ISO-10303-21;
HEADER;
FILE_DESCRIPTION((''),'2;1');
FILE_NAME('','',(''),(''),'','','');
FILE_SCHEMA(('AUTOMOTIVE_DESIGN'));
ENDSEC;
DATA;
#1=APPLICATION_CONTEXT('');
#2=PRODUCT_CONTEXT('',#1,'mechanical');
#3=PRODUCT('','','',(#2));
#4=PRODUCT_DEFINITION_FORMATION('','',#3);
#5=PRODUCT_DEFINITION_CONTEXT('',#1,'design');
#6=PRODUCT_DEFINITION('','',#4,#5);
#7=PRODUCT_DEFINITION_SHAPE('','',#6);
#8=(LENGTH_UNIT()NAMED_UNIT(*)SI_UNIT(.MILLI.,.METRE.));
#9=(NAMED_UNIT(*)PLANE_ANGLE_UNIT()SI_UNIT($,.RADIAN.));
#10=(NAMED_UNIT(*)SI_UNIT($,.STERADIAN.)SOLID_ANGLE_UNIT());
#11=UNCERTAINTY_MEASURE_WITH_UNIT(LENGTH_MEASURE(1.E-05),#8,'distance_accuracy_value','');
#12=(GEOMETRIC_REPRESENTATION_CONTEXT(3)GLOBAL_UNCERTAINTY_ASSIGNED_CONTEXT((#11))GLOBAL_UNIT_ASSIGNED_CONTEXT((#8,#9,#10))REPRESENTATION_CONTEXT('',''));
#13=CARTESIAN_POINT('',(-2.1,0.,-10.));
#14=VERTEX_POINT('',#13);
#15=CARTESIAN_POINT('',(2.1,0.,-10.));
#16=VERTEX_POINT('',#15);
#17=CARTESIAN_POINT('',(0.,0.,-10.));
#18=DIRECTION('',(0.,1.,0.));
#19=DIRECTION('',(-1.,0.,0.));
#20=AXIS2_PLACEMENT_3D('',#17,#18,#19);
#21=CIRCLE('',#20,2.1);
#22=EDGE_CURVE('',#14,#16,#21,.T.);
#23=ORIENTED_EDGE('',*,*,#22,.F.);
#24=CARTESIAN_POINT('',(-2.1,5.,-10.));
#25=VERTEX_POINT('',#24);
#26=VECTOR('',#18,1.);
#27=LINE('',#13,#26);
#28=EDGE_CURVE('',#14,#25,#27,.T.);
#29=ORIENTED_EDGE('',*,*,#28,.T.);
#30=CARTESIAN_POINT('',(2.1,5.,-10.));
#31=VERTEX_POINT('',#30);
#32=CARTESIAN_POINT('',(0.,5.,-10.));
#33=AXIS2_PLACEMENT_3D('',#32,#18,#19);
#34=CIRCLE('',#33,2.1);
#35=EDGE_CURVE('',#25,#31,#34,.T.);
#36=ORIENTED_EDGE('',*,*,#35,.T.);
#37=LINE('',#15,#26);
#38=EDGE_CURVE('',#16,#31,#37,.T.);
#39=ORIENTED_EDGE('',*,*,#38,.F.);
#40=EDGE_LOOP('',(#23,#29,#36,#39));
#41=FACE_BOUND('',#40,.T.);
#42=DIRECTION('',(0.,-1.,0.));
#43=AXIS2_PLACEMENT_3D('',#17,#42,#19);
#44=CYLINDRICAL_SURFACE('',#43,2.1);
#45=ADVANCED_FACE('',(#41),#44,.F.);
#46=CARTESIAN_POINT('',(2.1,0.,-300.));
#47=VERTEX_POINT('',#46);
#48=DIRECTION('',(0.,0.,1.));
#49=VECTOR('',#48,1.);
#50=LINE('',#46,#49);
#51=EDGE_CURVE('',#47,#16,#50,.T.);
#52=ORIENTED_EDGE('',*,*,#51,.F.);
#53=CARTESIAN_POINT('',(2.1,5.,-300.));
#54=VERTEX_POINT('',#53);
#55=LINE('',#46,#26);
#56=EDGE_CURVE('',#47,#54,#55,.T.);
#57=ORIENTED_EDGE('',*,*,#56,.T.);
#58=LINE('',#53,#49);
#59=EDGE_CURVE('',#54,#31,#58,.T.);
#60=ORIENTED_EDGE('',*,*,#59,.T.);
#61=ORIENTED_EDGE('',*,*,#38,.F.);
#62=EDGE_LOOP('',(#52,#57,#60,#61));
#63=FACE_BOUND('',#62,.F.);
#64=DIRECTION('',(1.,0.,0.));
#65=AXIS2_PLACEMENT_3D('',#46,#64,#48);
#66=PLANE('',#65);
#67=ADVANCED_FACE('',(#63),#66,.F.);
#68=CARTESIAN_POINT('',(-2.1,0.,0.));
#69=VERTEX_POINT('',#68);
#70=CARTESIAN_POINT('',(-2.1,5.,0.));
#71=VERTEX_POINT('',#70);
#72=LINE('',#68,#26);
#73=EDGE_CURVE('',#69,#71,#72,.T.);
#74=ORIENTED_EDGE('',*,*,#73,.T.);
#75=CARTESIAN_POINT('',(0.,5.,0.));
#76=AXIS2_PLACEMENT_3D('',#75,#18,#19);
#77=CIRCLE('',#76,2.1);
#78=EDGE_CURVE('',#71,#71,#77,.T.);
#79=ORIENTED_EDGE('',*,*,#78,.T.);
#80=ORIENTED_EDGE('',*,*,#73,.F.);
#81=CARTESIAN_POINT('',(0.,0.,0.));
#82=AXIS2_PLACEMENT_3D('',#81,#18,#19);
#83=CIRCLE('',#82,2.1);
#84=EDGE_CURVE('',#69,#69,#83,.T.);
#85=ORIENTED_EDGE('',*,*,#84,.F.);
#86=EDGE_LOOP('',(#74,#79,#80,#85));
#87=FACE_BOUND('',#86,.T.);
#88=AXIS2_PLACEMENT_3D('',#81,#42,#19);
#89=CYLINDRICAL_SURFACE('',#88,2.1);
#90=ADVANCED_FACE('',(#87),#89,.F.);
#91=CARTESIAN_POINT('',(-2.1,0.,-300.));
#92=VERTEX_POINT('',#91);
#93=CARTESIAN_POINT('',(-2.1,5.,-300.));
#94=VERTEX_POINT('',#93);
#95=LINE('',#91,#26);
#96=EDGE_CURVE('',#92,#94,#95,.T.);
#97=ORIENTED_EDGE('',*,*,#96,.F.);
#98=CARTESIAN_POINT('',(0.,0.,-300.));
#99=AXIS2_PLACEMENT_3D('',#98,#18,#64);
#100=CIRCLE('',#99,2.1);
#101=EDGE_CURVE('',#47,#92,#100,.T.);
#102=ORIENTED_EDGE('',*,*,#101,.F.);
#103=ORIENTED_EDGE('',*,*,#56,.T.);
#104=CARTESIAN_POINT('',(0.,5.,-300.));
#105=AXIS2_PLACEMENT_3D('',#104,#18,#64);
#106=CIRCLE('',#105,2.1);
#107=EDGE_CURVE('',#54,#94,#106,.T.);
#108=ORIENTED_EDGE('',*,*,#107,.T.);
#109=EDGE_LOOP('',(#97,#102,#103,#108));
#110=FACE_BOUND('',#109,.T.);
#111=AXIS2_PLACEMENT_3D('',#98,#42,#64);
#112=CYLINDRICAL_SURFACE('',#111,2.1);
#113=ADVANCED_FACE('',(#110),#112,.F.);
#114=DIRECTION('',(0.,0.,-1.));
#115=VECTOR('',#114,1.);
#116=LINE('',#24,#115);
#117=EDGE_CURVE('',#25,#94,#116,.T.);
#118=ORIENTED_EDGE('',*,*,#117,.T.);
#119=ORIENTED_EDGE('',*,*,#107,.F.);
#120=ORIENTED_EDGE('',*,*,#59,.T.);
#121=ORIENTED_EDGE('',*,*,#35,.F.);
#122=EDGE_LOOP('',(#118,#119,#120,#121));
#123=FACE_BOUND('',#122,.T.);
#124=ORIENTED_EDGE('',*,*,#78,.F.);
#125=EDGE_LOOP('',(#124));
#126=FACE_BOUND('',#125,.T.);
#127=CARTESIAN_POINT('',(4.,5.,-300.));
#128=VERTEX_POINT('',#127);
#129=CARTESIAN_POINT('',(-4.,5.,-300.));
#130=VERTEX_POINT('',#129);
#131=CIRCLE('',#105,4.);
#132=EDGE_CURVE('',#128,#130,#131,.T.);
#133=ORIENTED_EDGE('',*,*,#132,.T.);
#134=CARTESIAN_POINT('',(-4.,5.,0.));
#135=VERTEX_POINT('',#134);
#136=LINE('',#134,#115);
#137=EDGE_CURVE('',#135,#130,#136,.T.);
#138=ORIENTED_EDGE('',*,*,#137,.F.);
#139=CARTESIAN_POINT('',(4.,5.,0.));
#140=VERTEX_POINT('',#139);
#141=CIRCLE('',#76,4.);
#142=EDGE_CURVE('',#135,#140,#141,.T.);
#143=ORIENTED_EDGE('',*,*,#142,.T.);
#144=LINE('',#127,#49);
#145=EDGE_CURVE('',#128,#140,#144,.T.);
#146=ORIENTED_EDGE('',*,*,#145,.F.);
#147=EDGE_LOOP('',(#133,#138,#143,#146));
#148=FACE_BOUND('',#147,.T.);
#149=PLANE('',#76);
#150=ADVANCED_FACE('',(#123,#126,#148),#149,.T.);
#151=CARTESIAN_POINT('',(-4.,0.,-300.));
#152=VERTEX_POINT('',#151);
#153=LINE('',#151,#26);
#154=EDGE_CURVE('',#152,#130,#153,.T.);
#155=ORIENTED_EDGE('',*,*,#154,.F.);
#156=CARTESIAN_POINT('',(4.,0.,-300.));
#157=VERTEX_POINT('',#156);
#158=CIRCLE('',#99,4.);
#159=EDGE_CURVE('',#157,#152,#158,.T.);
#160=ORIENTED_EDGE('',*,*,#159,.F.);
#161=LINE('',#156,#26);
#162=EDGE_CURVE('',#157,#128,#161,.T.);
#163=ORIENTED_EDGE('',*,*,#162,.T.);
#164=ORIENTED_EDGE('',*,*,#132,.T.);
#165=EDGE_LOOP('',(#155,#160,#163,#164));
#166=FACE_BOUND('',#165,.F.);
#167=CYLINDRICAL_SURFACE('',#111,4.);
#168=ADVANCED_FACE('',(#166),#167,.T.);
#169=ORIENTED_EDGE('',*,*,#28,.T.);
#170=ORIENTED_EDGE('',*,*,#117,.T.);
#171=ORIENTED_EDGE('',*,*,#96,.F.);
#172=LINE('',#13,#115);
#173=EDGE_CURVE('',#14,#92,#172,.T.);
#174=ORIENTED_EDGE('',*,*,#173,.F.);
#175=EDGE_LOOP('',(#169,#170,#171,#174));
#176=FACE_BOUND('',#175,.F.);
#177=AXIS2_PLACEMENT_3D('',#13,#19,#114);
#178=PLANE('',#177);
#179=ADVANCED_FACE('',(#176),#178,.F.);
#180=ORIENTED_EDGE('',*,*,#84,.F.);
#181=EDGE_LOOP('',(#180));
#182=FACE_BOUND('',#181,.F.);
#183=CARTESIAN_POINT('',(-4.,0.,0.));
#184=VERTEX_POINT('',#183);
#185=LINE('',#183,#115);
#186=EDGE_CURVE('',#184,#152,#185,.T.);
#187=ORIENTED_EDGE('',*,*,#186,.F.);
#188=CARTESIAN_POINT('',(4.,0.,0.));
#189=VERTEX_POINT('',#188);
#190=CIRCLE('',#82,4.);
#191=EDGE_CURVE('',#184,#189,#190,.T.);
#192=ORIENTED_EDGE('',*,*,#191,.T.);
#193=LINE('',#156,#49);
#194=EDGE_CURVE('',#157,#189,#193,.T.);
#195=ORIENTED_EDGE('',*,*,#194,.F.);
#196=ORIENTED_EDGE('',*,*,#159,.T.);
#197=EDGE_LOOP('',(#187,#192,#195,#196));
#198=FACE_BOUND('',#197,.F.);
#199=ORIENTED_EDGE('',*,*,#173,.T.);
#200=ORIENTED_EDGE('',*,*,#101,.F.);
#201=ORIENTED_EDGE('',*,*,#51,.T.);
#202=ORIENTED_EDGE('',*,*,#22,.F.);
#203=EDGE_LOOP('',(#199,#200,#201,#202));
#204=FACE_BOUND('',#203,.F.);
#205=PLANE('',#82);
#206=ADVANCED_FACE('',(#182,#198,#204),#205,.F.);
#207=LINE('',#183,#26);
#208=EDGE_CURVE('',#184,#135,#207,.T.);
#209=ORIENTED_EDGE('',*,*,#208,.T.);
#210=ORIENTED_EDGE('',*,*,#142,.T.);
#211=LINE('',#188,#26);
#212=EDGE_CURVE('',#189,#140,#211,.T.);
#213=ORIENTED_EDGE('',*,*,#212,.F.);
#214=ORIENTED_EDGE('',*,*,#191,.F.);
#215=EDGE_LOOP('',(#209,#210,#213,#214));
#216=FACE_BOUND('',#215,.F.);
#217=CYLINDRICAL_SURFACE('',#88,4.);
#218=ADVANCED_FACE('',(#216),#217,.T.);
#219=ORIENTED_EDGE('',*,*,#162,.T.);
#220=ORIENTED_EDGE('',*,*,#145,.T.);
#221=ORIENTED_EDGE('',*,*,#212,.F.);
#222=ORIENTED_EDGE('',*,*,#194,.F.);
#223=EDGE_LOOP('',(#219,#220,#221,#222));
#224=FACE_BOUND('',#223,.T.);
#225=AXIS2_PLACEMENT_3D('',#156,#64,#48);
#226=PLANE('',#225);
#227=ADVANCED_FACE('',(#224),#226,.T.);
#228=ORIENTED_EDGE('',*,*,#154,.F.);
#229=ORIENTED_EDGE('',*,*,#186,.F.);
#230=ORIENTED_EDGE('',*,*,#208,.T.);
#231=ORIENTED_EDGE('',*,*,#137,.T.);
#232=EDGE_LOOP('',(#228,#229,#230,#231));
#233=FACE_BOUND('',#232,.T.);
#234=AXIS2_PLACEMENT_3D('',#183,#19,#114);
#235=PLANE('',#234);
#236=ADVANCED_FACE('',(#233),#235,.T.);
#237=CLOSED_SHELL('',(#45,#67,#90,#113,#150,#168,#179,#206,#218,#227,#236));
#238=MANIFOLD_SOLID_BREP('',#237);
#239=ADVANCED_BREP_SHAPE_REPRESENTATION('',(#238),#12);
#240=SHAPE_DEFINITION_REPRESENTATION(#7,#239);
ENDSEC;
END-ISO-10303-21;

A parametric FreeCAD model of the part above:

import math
import FreeCAD as App
import Part
import Sketcher
from FreeCAD import Vector

doc = App.newDocument("Part")
body = doc.addObject("PartDesign::Body", "Body")

# Sketch on XZ plane
sketch1 = body.newObject("Sketcher::SketchObject", "Sketch")
sketch1.AttachmentSupport = (doc.getObject("XZ_Plane"), [""])
sketch1.MapMode = "FlatFace"
sketch1.addGeometry(Part.LineSegment(Vector(-4, -300, 0), Vector(-4, 0, 0)), False)
sketch1.addGeometry(Part.ArcOfCircle(Part.Circle(Vector(0, 0, 0), Vector(0, 0, 1), 4), math.radians(0), math.radians(180)), False)
sketch1.addGeometry(Part.LineSegment(Vector(4, 0, 0), Vector(4, -300, 0)), False)
sketch1.addGeometry(Part.ArcOfCircle(Part.Circle(Vector(0, -300, 0), Vector(0, 0, 1), 4), math.radians(180), math.radians(360)), False)
sketch1.addGeometry(Part.ArcOfCircle(Part.Circle(Vector(0, -10, 0), Vector(0, 0, 1), 2.1), math.radians(0), math.radians(180)), False)
sketch1.addGeometry(Part.LineSegment(Vector(-2.1, -10, 0), Vector(-2.1, -300, 0)), False)
sketch1.addGeometry(Part.ArcOfCircle(Part.Circle(Vector(0, -300, 0), Vector(0, 0, 1), 2.1), math.radians(180), math.radians(360)), False)
sketch1.addGeometry(Part.LineSegment(Vector(2.1, -300, 0), Vector(2.1, -10, 0)), False)
sketch1.addGeometry(Part.Circle(Vector(0, 0, 0), Vector(0, 0, 1), 2.1), False)
sketch1.addConstraint(Sketcher.Constraint("Tangent", 0, 2, 1, 2))
sketch1.addConstraint(Sketcher.Constraint("Tangent", 1, 1, 2, 1))
sketch1.addConstraint(Sketcher.Constraint("Tangent", 2, 2, 3, 2))
sketch1.addConstraint(Sketcher.Constraint("Tangent", 3, 1, 0, 1))
sketch1.addConstraint(Sketcher.Constraint("Tangent", 4, 2, 5, 1))
sketch1.addConstraint(Sketcher.Constraint("Tangent", 5, 2, 6, 1))
sketch1.addConstraint(Sketcher.Constraint("Tangent", 6, 2, 7, 1))
sketch1.addConstraint(Sketcher.Constraint("Tangent", 7, 2, 4, 1))
sketch1.addConstraint(Sketcher.Constraint("Vertical", 0))
sketch1.addConstraint(Sketcher.Constraint("Vertical", 2))
sketch1.addConstraint(Sketcher.Constraint("Vertical", 5))
sketch1.addConstraint(Sketcher.Constraint("Vertical", 7))
sketch1.addConstraint(Sketcher.Constraint("Coincident", 1, 3, -1, 1))
sketch1.addConstraint(Sketcher.Constraint("Coincident", 8, 3, -1, 1))
sketch1.addConstraint(Sketcher.Constraint("Coincident", 6, 3, 3, 3))
sketch1.addConstraint(Sketcher.Constraint("Equal", 6, 8))
sketch1.addConstraint(Sketcher.Constraint("Radius", 1, 4.0))
sketch1.addConstraint(Sketcher.Constraint("Diameter", 8, 4.2))
sketch1.addConstraint(Sketcher.Constraint("DistanceY", 0, 1, 0, 2, 300.0))
sketch1.addConstraint(Sketcher.Constraint("DistanceY", 4, 3, -1, 1, 10.0))
pad1 = body.newObject("PartDesign::Pad", "Pad")
pad1.Profile = sketch1
pad1.Length = 5
pad1.Reversed = True

doc.recompute()
